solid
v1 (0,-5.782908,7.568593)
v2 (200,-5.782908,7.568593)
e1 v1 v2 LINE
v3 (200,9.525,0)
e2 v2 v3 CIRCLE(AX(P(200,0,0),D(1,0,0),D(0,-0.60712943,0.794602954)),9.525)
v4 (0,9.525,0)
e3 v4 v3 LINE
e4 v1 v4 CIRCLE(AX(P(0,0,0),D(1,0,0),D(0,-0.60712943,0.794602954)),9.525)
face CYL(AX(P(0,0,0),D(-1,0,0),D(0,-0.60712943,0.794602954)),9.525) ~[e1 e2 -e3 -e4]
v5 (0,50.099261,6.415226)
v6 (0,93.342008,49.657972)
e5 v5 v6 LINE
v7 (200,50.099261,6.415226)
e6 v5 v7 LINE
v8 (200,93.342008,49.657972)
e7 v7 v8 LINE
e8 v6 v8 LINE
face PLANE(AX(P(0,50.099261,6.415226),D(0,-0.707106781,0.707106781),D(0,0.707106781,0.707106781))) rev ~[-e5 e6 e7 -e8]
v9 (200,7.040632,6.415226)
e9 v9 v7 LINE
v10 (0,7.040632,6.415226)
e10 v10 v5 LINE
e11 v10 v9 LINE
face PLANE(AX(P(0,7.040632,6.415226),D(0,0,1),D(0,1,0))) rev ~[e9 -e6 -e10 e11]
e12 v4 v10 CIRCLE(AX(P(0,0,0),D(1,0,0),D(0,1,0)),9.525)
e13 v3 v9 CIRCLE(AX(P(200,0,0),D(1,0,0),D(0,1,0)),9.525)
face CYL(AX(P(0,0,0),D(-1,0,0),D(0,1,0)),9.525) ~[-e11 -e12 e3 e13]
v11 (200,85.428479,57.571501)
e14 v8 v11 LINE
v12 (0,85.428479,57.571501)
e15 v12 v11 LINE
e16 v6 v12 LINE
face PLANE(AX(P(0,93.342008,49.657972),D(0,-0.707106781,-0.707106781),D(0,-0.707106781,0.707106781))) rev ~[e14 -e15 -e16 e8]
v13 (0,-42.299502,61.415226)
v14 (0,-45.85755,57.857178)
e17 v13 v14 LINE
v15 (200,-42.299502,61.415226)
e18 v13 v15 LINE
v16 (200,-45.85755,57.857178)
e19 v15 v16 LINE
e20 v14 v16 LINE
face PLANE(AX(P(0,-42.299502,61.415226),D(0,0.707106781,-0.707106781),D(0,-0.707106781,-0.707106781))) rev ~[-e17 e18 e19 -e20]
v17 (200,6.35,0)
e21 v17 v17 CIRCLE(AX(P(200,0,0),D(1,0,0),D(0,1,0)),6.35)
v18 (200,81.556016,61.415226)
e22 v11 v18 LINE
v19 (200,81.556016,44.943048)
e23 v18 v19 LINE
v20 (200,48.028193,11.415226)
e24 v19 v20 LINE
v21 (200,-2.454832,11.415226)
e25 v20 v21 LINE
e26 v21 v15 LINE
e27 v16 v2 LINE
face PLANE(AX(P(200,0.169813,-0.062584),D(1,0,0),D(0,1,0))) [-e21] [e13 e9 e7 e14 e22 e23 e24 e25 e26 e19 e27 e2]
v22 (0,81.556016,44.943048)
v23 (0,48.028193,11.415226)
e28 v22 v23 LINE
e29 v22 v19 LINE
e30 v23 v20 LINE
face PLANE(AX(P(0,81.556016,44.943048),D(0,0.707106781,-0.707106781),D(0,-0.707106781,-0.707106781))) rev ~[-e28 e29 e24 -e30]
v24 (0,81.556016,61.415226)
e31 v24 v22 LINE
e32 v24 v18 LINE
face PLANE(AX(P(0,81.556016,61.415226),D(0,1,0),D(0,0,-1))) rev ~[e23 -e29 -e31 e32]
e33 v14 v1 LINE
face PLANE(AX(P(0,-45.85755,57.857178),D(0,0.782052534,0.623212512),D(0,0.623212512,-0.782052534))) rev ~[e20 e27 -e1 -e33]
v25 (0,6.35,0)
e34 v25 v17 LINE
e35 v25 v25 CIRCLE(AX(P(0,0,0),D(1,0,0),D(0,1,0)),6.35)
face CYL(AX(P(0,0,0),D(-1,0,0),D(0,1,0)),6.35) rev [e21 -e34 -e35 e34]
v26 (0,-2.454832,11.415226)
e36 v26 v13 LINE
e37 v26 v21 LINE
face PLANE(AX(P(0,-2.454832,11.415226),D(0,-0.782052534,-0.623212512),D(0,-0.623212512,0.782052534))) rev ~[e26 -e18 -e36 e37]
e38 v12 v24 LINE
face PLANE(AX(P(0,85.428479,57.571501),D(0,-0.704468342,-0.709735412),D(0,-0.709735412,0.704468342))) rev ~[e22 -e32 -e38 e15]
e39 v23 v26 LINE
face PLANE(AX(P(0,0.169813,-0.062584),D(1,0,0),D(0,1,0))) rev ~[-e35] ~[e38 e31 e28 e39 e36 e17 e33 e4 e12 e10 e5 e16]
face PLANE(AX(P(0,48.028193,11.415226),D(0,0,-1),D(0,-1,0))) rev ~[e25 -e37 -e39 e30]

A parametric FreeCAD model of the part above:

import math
import FreeCAD as App
import Part
import Sketcher
from FreeCAD import Vector
Q = App.Units.Quantity

doc = App.newDocument("Part")
params = doc.addObject("Spreadsheet::Sheet", "Params")
for row, (alias, value) in enumerate([
    ("sketch1_diameter", "0.5 in"),
    ("sketch1_radius", "0.375 in"),
    ("pad1_length", "200 mm"),
], start=1):
    params.set(f"A{row}", alias)
    params.set(f"B{row}", "=" + value)
    params.setAlias(f"B{row}", alias)

body = doc.addObject("PartDesign::Body", "Body")

# Sketch on YZ plane
sketch1 = body.newObject("Sketcher::SketchObject", "Sketch")
sketch1.AttachmentSupport = (doc.getObject("YZ_Plane"), [""])
sketch1.MapMode = "FlatFace"
sketch1.addGeometry([
    Part.ArcOfCircle(Part.Circle(Vector(0, 0, 0), Vector(0, 0, 1), 10), math.radians(127), math.radians(360)),  # 0
    Part.ArcOfCircle(Part.Circle(Vector(0, 0, 0), Vector(0, 0, 1), 10), math.radians(0), math.radians(42)),  # 1
    Part.LineSegment(Vector(7, 6, 0), Vector(50, 6, 0)),  # 2
    Part.LineSegment(Vector(50, 6, 0), Vector(93, 50, 0)),  # 3
    Part.LineSegment(Vector(93, 50, 0), Vector(85, 58, 0)),  # 4
    Part.LineSegment(Vector(85, 58, 0), Vector(82, 61, 0)),  # 5
    Part.LineSegment(Vector(82, 61, 0), Vector(82, 45, 0)),  # 6
    Part.LineSegment(Vector(82, 45, 0), Vector(48, 11, 0)),  # 7
    Part.LineSegment(Vector(48, 11, 0), Vector(-2, 11, 0)),  # 8
    Part.LineSegment(Vector(-2, 11, 0), Vector(-42, 61, 0)),  # 9
    Part.LineSegment(Vector(-42, 61, 0), Vector(-46, 58, 0)),  # 10
    Part.LineSegment(Vector(-46, 58, 0), Vector(-6, 8, 0)),  # 11
    Part.Circle(Vector(0, 0, 0), Vector(0, 0, 1), 6),  # 12
], False)
sketch1.addConstraint([
    Sketcher.Constraint("Tangent", 0, 2, 1, 1),
    Sketcher.Constraint("Coincident", 1, 2, 2, 1),
    Sketcher.Constraint("Coincident", 2, 2, 3, 1),
    Sketcher.Constraint("Coincident", 3, 2, 4, 1),
    Sketcher.Constraint("Coincident", 4, 2, 5, 1),
    Sketcher.Constraint("Coincident", 5, 2, 6, 1),
    Sketcher.Constraint("Coincident", 6, 2, 7, 1),
    Sketcher.Constraint("Coincident", 7, 2, 8, 1),
    Sketcher.Constraint("Coincident", 8, 2, 9, 1),
    Sketcher.Constraint("Coincident", 9, 2, 10, 1),
    Sketcher.Constraint("Coincident", 10, 2, 11, 1),
    Sketcher.Constraint("Coincident", 11, 2, 0, 1),
    Sketcher.Constraint("Horizontal", 2),
    Sketcher.Constraint("Vertical", 6),
    Sketcher.Constraint("Horizontal", 8),
    Sketcher.Constraint("Coincident", 0, 3, -1, 1),
    Sketcher.Constraint("Coincident", 12, 3, -1, 1),
    Sketcher.Constraint("Equal", 0, 1),
    Sketcher.Constraint("PointOnObject", 0, 2, -1),
    Sketcher.Constraint("Perpendicular", 3, 4),
    Sketcher.Constraint("Perpendicular", 4, 7),
    Sketcher.Constraint("Parallel", 7, 10),
    Sketcher.Constraint("Parallel", 9, 11),
    Sketcher.Constraint("Horizontal", 5, 2, 9, 2),
    Sketcher.Constraint("Diameter", 12, Q("0.5 in")),
    Sketcher.Constraint("Angle", 3, Q("45 deg")),
    Sketcher.Constraint("Radius", 0, Q("0.375 in")),
    Sketcher.Constraint("Distance", 7, 47.415501),
    Sketcher.Constraint("DistanceX", 2, 1, 2, 2, 43.058629),
    Sketcher.Constraint("DistanceY", -1, 1, 4, 2, 57.571501),
    Sketcher.Constraint("DistanceY", 2, 2, 5, 2, 55.0),
    Sketcher.Constraint("DistanceY", 2, 2, 7, 2, 5.0),
    Sketcher.Constraint("Distance", 3, 61.154478),
    Sketcher.Constraint("Distance", 4, 11.19142),
    Sketcher.Constraint("Distance", 10, 5.031839),
    Sketcher.Constraint("DistanceX", 8, 2, 8, 1, 50.483025),
    Sketcher.Constraint("DistanceX", 8, 2, -1, 1, 2.454832),
    Sketcher.Constraint("DistanceX", 10, 2, -1, 1, 45.85755),
])
sketch1.setExpression("Constraints[24]", "Params.sketch1_diameter")
sketch1.setExpression("Constraints[26]", "Params.sketch1_radius")
pad1 = body.newObject("PartDesign::Pad", "Pad")
pad1.Profile = sketch1
pad1.setExpression("Length", "Params.pad1_length")

doc.recompute()
